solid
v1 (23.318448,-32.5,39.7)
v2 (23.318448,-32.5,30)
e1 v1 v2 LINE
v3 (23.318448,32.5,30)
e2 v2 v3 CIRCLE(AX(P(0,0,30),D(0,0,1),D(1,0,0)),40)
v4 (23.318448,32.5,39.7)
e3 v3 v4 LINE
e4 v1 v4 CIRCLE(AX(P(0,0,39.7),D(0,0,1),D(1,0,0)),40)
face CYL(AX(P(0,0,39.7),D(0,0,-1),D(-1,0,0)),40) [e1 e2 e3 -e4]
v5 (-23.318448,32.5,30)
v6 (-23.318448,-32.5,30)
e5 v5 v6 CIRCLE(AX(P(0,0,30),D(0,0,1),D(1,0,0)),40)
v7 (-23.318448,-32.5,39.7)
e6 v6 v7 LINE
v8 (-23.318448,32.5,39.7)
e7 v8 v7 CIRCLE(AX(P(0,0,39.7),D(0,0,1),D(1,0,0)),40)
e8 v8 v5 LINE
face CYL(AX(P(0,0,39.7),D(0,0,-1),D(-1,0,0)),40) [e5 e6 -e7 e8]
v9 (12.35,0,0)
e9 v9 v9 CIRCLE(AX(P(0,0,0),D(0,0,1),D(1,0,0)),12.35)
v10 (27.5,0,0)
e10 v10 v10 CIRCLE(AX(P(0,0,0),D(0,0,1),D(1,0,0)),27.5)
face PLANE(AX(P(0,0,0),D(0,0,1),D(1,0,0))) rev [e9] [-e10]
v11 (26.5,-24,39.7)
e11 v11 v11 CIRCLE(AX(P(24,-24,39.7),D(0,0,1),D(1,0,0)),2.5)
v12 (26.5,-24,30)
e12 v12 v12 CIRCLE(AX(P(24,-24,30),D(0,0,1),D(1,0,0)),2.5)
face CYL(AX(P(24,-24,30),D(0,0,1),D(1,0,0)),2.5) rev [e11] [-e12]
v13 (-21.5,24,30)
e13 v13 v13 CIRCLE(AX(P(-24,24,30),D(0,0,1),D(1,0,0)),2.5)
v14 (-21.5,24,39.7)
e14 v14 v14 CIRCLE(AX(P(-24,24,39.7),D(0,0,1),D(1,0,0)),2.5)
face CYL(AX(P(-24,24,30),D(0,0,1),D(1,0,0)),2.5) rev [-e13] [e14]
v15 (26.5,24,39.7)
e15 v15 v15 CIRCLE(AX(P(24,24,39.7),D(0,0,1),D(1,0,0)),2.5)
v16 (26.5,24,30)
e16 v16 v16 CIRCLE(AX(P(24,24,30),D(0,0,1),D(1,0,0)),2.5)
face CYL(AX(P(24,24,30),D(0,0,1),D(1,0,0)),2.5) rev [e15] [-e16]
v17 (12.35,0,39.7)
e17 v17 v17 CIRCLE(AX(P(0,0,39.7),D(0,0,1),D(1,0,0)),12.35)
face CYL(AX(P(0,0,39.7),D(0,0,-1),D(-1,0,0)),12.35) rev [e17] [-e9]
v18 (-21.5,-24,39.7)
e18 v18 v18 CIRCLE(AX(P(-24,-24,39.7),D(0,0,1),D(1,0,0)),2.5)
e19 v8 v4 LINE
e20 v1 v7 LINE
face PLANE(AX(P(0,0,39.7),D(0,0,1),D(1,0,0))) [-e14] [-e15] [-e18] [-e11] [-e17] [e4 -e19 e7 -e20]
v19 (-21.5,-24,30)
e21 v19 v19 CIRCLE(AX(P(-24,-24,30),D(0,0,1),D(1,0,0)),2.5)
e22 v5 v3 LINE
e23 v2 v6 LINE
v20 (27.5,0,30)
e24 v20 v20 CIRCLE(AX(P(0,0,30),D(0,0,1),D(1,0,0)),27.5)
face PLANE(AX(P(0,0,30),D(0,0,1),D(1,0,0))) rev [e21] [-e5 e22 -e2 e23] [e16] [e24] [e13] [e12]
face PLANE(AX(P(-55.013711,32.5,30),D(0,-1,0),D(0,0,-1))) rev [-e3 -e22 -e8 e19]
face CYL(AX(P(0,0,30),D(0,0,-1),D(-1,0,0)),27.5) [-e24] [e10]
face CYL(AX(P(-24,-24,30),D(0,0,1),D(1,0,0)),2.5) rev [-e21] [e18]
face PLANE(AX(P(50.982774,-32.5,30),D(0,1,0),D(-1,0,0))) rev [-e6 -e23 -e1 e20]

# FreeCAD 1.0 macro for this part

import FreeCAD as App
import Part
import Sketcher
Q = App.Units.Quantity

doc = App.newDocument("Part")
body = doc.addObject("PartDesign::Body", "Body")

sketch1 = body.newObject("Sketcher::SketchObject", "Sketch")
sketch1.AttachmentSupport = (doc.getObject("XY_Plane"), [""])
sketch1.MapMode = "FlatFace"
sketch1.addGeometry(Part.Circle(App.Vector(0, 0, 0), App.Vector(0, 0, 1), 28), False)
sketch1.addConstraint([
    Sketcher.Constraint("Coincident", 0, 3, -1, 1),
    Sketcher.Constraint("Diameter", 0, Q("55 mm")),
])
pad1 = body.newObject("PartDesign::Pad", "Pad")
pad1.Profile = sketch1
pad1.Length = 30

sketch2 = body.newObject("Sketcher::SketchObject", "Sketch001")
sketch2.AttachmentSupport = (doc.getObject("XY_Plane"), [""])
sketch2.MapMode = "FlatFace"
sketch2.AttachmentOffset = App.Placement(App.Vector(0, 0, 30), App.Rotation())
sketch2.addGeometry(Part.Circle(App.Vector(0, 0, 0), App.Vector(0, 0, 1), 40), False)
sketch2.addConstraint([
    Sketcher.Constraint("Coincident", 0, 3, -1, 1),
    Sketcher.Constraint("Diameter", 0, Q("80 mm")),
])
pad2 = body.newObject("PartDesign::Pad", "Pad001")
pad2.Profile = sketch2
pad2.Length = 9.7

sketch3 = body.newObject("Sketcher::SketchObject", "Sketch002")
sketch3.AttachmentSupport = (doc.getObject("XY_Plane"), [""])
sketch3.MapMode = "FlatFace"
sketch3.AttachmentOffset = App.Placement(App.Vector(0, 0, 39.7), App.Rotation())
sketch3.addGeometry([
    Part.LineSegment(App.Vector(-55, 40, 0), App.Vector(-55, 32, 0)),
    Part.LineSegment(App.Vector(-55, 32, 0), App.Vector(54, 32, 0)),
    Part.LineSegment(App.Vector(54, 32, 0), App.Vector(54, 40, 0)),
    Part.LineSegment(App.Vector(54, 40, 0), App.Vector(-55, 40, 0)),
], False)
sketch3.addConstraint([
    Sketcher.Constraint("Coincident", 0, 2, 1, 1),
    Sketcher.Constraint("Coincident", 1, 2, 2, 1),
    Sketcher.Constraint("Coincident", 2, 2, 3, 1),
    Sketcher.Constraint("Coincident", 3, 2, 0, 1),
    Sketcher.Constraint("Vertical", 0),
    Sketcher.Constraint("Horizontal", 1),
    Sketcher.Constraint("Vertical", 2),
    Sketcher.Constraint("Horizontal", 3),
    Sketcher.Constraint("DistanceY", 0, 2, 0, 1, Q("7.5 mm")),
    Sketcher.Constraint("DistanceY", -1, 1, 2, 2, Q("40 mm")),
    Sketcher.Constraint("DistanceX", 1, 1, 1, 2, Q("108.783825 mm")),
    Sketcher.Constraint("DistanceX", 0, 2, -1, 1, Q("55.013711 mm")),
])
pocket1 = body.newObject("PartDesign::Pocket", "Pocket")
pocket1.Profile = sketch3
pocket1.Length = 9.7

sketch4 = body.newObject("Sketcher::SketchObject", "Sketch003")
sketch4.AttachmentSupport = (doc.getObject("XY_Plane"), [""])
sketch4.MapMode = "FlatFace"
sketch4.AttachmentOffset = App.Placement(App.Vector(0, 0, 39.7), App.Rotation())
sketch4.addGeometry([
    Part.LineSegment(App.Vector(-58, -32, 0), App.Vector(-58, -40, 0)),
    Part.LineSegment(App.Vector(-58, -40, 0), App.Vector(51, -40, 0)),
    Part.LineSegment(App.Vector(51, -40, 0), App.Vector(51, -32, 0)),
    Part.LineSegment(App.Vector(51, -32, 0), App.Vector(-58, -32, 0)),
], False)
sketch4.addConstraint([
    Sketcher.Constraint("Coincident", 0, 2, 1, 1),
    Sketcher.Constraint("Coincident", 1, 2, 2, 1),
    Sketcher.Constraint("Coincident", 2, 2, 3, 1),
    Sketcher.Constraint("Coincident", 3, 2, 0, 1),
    Sketcher.Constraint("Vertical", 0),
    Sketcher.Constraint("Horizontal", 1),
    Sketcher.Constraint("Vertical", 2),
    Sketcher.Constraint("Horizontal", 3),
    Sketcher.Constraint("DistanceY", 0, 2, 0, 1, Q("7.5 mm")),
    Sketcher.Constraint("DistanceY", 0, 2, -1, 1, Q("40 mm")),
    Sketcher.Constraint("DistanceX", 1, 1, 1, 2, Q("108.783825 mm")),
    Sketcher.Constraint("DistanceX", 0, 2, -1, 1, Q("57.801051 mm")),
])
pocket2 = body.newObject("PartDesign::Pocket", "Pocket001")
pocket2.Profile = sketch4
pocket2.Length = 9.7

sketch5 = body.newObject("Sketcher::SketchObject", "Sketch004")
sketch5.AttachmentSupport = (doc.getObject("XY_Plane"), [""])
sketch5.MapMode = "FlatFace"
sketch5.addGeometry(Part.Circle(App.Vector(0, 0, 0), App.Vector(0, 0, 1), 12), False)
sketch5.addConstraint([
    Sketcher.Constraint("Coincident", 0, 3, -1, 1),
    Sketcher.Constraint("Diameter", 0, Q("24.7 mm")),
])
pocket3 = body.newObject("PartDesign::Pocket", "Pocket002")
pocket3.Profile = sketch5
pocket3.Length = 39.7
pocket3.Reversed = True

sketch6 = body.newObject("Sketcher::SketchObject", "Sketch005")
sketch6.AttachmentSupport = (doc.getObject("XY_Plane"), [""])
sketch6.MapMode = "FlatFace"
sketch6.AttachmentOffset = App.Placement(App.Vector(0, 0, 39.7), App.Rotation())
sketch6.addGeometry([
    Part.Circle(App.Vector(-24, 24, 0), App.Vector(0, 0, 1), 2.5),
    Part.Circle(App.Vector(24, 24, 0), App.Vector(0, 0, 1), 2.5),
    Part.Circle(App.Vector(-24, -24, 0), App.Vector(0, 0, 1), 2.5),
    Part.Circle(App.Vector(24, -24, 0), App.Vector(0, 0, 1), 2.5),
], False)
sketch6.addConstraint([
    Sketcher.Constraint("Equal", 0, 1),
    Sketcher.Constraint("Equal", 1, 2),
    Sketcher.Constraint("Equal", 2, 3),
    Sketcher.Constraint("Symmetric", 1, 3, 2, 3, -1, 1),
    Sketcher.Constraint("Symmetric", 0, 3, 3, 3, -1, 1),
    Sketcher.Constraint("Symmetric", 0, 3, 1, 3, -2),
    Sketcher.Constraint("Diameter", 0, Q("5 mm")),
    Sketcher.Constraint("DistanceX", 0, 3, -1, 1, Q("24 mm")),
    Sketcher.Constraint("DistanceY", -1, 1, 0, 3, Q("24 mm")),
])
pocket4 = body.newObject("PartDesign::Pocket", "Pocket003")
pocket4.Profile = sketch6
pocket4.Length = 9.7

doc.recompute()
